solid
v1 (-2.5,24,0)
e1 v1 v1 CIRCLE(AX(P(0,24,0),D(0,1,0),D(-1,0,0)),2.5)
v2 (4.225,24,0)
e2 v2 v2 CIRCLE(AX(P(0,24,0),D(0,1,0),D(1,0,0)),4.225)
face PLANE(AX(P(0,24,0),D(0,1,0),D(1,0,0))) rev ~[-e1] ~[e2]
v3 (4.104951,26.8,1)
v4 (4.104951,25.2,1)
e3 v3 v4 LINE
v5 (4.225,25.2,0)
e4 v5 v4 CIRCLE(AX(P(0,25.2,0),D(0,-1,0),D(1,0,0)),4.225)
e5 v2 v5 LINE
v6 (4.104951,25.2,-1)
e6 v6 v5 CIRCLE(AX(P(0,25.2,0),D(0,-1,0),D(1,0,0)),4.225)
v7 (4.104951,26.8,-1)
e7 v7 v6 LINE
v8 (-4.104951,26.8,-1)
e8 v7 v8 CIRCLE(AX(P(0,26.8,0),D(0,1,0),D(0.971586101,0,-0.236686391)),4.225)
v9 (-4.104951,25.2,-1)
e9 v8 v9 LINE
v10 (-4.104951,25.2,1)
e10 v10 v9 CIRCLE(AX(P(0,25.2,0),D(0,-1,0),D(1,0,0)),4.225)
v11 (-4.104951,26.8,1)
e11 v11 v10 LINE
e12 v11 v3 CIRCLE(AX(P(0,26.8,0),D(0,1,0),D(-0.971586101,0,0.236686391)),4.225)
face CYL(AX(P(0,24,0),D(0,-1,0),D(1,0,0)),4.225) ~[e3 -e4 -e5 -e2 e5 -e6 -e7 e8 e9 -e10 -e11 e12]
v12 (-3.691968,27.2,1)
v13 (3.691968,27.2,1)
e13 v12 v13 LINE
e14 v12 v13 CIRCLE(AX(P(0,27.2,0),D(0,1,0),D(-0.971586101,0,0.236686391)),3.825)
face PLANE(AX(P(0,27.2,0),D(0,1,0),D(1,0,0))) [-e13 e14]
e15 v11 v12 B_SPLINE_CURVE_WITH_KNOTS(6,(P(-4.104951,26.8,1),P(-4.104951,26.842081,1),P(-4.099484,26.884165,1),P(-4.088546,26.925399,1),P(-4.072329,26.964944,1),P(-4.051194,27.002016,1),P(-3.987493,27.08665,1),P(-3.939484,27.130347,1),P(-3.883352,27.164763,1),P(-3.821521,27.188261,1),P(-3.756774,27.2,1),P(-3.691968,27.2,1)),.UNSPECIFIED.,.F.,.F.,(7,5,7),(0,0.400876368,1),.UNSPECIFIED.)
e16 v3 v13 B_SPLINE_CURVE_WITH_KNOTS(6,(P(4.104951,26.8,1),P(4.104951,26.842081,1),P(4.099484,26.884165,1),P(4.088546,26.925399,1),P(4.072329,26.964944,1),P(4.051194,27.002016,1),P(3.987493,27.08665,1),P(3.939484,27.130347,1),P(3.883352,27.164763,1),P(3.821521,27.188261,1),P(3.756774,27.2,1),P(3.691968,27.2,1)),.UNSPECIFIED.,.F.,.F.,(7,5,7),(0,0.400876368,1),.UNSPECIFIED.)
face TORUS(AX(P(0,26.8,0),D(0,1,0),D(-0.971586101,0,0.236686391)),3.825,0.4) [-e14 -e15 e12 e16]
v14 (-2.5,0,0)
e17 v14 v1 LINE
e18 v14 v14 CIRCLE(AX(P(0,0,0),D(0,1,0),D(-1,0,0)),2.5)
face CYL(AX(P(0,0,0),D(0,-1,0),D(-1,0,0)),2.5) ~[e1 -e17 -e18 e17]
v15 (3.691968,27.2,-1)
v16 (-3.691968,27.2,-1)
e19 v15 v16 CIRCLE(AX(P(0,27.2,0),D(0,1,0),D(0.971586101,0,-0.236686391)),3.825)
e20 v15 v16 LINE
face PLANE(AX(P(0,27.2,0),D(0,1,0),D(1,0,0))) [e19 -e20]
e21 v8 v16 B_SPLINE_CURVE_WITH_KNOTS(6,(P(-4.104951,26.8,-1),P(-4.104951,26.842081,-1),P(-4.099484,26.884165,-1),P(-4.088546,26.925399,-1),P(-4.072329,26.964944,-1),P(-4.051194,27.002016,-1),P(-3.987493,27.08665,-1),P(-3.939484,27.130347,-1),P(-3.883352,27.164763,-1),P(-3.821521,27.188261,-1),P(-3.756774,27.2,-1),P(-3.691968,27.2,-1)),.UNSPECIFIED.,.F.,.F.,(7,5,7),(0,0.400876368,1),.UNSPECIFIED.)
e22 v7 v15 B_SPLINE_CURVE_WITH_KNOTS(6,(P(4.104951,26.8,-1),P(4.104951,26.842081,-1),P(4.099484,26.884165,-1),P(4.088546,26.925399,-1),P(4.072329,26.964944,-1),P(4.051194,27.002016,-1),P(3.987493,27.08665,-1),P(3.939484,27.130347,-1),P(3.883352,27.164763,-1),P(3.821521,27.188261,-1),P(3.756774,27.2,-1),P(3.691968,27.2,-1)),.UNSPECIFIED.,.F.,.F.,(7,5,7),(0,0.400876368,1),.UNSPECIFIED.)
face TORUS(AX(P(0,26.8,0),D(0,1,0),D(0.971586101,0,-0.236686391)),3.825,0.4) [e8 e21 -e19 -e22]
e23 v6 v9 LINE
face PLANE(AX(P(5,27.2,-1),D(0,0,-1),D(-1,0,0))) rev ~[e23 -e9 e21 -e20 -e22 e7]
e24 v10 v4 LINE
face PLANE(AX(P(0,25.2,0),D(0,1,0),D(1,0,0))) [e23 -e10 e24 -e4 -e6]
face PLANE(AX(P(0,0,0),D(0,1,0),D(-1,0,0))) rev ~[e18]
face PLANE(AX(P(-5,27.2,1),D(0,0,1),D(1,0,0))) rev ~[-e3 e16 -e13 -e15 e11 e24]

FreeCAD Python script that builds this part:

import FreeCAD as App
import Part
import Sketcher


def edges_at(feature, points):
    """Names of the edges that pass closest to the given points."""
    edges = feature.Shape.Edges
    near = lambda p: min(range(len(edges)), key=lambda i: edges[i].distToShape(Part.Vertex(*p))[0])
    return sorted({f"Edge{near(p) + 1}" for p in points})


def add_polygon(sketch, points):
    """Adds a closed chain of lines whose ends are joined by coincident constraints."""
    first, n = sketch.GeometryCount, len(points)
    for a, b in zip(points, points[1:] + points[:1]):
        sketch.addGeometry(Part.LineSegment(App.Vector(*a, 0), App.Vector(*b, 0)), False)
    for i in range(n):
        sketch.addConstraint(Sketcher.Constraint("Coincident", first + i, 2, first + (i + 1) % n, 1))

doc = App.newDocument("Part")
body = doc.addObject("PartDesign::Body", "Body")

# Sketch on XZ plane
sketch1 = body.newObject("Sketcher::SketchObject", "Sketch")
sketch1.AttachmentSupport = (doc.getObject("XZ_Plane"), [""])
sketch1.MapMode = "FlatFace"
sketch1.addGeometry(Part.Circle(App.Vector(0, 0, 0), App.Vector(0, 0, 1), 2.5), False)
sketch1.addConstraint([
    Sketcher.Constraint("Coincident", 0, 3, -1, 1),
    Sketcher.Constraint("Diameter", 0, 5.0),
])
pad1 = body.newObject("PartDesign::Pad", "Pad")
pad1.Profile = sketch1
pad1.Length = 24
pad1.Reversed = True

# Sketch on XZ plane
sketch2 = body.newObject("Sketcher::SketchObject", "Sketch001")
sketch2.AttachmentSupport = (doc.getObject("XZ_Plane"), [""])
sketch2.MapMode = "FlatFace"
sketch2.AttachmentOffset = App.Placement(App.Vector(0, 0, -24), App.Rotation())
sketch2.addGeometry(Part.Circle(App.Vector(0, 0, 0), App.Vector(0, 0, 1), 4.2), False)
sketch2.addConstraint([
    Sketcher.Constraint("Coincident", 0, 3, -1, 1),
    Sketcher.Constraint("Diameter", 0, 8.45),
])
pad2 = body.newObject("PartDesign::Pad", "Pad001")
pad2.Profile = sketch2
pad2.Length = 3.2
pad2.Reversed = True

# Sketch on XZ plane
sketch3 = body.newObject("Sketcher::SketchObject", "Sketch002")
sketch3.AttachmentSupport = (doc.getObject("XZ_Plane"), [""])
sketch3.MapMode = "FlatFace"
sketch3.AttachmentOffset = App.Placement(App.Vector(0, 0, -27.2), App.Rotation())
add_polygon(sketch3, [(-5, -1), (-5, 1), (5, 1), (5, -1)])  # lines 0-3
sketch3.addConstraint([
    Sketcher.Constraint("Vertical", 0),
    Sketcher.Constraint("Horizontal", 1),
    Sketcher.Constraint("Vertical", 2),
    Sketcher.Constraint("Horizontal", 3),
    Sketcher.Constraint("Symmetric", 0, 2, 2, 2, -1, 1),
    Sketcher.Constraint("DistanceX", 1, 1, 1, 2, 10.0),
    Sketcher.Constraint("DistanceY", 0, 1, 0, 2, 2.0),
])
pocket1 = body.newObject("PartDesign::Pocket", "Pocket")
pocket1.Profile = sketch3
pocket1.Length = 2
pocket1.Reversed = True
doc.recompute()

fillet = body.newObject("PartDesign::Fillet", "Fillet")
fillet.Base = (pocket1, edges_at(pocket1, [(0, 27.2, 4.225), (0, 27.2, -4.225)]))
fillet.Radius = 0.4

doc.recompute()
